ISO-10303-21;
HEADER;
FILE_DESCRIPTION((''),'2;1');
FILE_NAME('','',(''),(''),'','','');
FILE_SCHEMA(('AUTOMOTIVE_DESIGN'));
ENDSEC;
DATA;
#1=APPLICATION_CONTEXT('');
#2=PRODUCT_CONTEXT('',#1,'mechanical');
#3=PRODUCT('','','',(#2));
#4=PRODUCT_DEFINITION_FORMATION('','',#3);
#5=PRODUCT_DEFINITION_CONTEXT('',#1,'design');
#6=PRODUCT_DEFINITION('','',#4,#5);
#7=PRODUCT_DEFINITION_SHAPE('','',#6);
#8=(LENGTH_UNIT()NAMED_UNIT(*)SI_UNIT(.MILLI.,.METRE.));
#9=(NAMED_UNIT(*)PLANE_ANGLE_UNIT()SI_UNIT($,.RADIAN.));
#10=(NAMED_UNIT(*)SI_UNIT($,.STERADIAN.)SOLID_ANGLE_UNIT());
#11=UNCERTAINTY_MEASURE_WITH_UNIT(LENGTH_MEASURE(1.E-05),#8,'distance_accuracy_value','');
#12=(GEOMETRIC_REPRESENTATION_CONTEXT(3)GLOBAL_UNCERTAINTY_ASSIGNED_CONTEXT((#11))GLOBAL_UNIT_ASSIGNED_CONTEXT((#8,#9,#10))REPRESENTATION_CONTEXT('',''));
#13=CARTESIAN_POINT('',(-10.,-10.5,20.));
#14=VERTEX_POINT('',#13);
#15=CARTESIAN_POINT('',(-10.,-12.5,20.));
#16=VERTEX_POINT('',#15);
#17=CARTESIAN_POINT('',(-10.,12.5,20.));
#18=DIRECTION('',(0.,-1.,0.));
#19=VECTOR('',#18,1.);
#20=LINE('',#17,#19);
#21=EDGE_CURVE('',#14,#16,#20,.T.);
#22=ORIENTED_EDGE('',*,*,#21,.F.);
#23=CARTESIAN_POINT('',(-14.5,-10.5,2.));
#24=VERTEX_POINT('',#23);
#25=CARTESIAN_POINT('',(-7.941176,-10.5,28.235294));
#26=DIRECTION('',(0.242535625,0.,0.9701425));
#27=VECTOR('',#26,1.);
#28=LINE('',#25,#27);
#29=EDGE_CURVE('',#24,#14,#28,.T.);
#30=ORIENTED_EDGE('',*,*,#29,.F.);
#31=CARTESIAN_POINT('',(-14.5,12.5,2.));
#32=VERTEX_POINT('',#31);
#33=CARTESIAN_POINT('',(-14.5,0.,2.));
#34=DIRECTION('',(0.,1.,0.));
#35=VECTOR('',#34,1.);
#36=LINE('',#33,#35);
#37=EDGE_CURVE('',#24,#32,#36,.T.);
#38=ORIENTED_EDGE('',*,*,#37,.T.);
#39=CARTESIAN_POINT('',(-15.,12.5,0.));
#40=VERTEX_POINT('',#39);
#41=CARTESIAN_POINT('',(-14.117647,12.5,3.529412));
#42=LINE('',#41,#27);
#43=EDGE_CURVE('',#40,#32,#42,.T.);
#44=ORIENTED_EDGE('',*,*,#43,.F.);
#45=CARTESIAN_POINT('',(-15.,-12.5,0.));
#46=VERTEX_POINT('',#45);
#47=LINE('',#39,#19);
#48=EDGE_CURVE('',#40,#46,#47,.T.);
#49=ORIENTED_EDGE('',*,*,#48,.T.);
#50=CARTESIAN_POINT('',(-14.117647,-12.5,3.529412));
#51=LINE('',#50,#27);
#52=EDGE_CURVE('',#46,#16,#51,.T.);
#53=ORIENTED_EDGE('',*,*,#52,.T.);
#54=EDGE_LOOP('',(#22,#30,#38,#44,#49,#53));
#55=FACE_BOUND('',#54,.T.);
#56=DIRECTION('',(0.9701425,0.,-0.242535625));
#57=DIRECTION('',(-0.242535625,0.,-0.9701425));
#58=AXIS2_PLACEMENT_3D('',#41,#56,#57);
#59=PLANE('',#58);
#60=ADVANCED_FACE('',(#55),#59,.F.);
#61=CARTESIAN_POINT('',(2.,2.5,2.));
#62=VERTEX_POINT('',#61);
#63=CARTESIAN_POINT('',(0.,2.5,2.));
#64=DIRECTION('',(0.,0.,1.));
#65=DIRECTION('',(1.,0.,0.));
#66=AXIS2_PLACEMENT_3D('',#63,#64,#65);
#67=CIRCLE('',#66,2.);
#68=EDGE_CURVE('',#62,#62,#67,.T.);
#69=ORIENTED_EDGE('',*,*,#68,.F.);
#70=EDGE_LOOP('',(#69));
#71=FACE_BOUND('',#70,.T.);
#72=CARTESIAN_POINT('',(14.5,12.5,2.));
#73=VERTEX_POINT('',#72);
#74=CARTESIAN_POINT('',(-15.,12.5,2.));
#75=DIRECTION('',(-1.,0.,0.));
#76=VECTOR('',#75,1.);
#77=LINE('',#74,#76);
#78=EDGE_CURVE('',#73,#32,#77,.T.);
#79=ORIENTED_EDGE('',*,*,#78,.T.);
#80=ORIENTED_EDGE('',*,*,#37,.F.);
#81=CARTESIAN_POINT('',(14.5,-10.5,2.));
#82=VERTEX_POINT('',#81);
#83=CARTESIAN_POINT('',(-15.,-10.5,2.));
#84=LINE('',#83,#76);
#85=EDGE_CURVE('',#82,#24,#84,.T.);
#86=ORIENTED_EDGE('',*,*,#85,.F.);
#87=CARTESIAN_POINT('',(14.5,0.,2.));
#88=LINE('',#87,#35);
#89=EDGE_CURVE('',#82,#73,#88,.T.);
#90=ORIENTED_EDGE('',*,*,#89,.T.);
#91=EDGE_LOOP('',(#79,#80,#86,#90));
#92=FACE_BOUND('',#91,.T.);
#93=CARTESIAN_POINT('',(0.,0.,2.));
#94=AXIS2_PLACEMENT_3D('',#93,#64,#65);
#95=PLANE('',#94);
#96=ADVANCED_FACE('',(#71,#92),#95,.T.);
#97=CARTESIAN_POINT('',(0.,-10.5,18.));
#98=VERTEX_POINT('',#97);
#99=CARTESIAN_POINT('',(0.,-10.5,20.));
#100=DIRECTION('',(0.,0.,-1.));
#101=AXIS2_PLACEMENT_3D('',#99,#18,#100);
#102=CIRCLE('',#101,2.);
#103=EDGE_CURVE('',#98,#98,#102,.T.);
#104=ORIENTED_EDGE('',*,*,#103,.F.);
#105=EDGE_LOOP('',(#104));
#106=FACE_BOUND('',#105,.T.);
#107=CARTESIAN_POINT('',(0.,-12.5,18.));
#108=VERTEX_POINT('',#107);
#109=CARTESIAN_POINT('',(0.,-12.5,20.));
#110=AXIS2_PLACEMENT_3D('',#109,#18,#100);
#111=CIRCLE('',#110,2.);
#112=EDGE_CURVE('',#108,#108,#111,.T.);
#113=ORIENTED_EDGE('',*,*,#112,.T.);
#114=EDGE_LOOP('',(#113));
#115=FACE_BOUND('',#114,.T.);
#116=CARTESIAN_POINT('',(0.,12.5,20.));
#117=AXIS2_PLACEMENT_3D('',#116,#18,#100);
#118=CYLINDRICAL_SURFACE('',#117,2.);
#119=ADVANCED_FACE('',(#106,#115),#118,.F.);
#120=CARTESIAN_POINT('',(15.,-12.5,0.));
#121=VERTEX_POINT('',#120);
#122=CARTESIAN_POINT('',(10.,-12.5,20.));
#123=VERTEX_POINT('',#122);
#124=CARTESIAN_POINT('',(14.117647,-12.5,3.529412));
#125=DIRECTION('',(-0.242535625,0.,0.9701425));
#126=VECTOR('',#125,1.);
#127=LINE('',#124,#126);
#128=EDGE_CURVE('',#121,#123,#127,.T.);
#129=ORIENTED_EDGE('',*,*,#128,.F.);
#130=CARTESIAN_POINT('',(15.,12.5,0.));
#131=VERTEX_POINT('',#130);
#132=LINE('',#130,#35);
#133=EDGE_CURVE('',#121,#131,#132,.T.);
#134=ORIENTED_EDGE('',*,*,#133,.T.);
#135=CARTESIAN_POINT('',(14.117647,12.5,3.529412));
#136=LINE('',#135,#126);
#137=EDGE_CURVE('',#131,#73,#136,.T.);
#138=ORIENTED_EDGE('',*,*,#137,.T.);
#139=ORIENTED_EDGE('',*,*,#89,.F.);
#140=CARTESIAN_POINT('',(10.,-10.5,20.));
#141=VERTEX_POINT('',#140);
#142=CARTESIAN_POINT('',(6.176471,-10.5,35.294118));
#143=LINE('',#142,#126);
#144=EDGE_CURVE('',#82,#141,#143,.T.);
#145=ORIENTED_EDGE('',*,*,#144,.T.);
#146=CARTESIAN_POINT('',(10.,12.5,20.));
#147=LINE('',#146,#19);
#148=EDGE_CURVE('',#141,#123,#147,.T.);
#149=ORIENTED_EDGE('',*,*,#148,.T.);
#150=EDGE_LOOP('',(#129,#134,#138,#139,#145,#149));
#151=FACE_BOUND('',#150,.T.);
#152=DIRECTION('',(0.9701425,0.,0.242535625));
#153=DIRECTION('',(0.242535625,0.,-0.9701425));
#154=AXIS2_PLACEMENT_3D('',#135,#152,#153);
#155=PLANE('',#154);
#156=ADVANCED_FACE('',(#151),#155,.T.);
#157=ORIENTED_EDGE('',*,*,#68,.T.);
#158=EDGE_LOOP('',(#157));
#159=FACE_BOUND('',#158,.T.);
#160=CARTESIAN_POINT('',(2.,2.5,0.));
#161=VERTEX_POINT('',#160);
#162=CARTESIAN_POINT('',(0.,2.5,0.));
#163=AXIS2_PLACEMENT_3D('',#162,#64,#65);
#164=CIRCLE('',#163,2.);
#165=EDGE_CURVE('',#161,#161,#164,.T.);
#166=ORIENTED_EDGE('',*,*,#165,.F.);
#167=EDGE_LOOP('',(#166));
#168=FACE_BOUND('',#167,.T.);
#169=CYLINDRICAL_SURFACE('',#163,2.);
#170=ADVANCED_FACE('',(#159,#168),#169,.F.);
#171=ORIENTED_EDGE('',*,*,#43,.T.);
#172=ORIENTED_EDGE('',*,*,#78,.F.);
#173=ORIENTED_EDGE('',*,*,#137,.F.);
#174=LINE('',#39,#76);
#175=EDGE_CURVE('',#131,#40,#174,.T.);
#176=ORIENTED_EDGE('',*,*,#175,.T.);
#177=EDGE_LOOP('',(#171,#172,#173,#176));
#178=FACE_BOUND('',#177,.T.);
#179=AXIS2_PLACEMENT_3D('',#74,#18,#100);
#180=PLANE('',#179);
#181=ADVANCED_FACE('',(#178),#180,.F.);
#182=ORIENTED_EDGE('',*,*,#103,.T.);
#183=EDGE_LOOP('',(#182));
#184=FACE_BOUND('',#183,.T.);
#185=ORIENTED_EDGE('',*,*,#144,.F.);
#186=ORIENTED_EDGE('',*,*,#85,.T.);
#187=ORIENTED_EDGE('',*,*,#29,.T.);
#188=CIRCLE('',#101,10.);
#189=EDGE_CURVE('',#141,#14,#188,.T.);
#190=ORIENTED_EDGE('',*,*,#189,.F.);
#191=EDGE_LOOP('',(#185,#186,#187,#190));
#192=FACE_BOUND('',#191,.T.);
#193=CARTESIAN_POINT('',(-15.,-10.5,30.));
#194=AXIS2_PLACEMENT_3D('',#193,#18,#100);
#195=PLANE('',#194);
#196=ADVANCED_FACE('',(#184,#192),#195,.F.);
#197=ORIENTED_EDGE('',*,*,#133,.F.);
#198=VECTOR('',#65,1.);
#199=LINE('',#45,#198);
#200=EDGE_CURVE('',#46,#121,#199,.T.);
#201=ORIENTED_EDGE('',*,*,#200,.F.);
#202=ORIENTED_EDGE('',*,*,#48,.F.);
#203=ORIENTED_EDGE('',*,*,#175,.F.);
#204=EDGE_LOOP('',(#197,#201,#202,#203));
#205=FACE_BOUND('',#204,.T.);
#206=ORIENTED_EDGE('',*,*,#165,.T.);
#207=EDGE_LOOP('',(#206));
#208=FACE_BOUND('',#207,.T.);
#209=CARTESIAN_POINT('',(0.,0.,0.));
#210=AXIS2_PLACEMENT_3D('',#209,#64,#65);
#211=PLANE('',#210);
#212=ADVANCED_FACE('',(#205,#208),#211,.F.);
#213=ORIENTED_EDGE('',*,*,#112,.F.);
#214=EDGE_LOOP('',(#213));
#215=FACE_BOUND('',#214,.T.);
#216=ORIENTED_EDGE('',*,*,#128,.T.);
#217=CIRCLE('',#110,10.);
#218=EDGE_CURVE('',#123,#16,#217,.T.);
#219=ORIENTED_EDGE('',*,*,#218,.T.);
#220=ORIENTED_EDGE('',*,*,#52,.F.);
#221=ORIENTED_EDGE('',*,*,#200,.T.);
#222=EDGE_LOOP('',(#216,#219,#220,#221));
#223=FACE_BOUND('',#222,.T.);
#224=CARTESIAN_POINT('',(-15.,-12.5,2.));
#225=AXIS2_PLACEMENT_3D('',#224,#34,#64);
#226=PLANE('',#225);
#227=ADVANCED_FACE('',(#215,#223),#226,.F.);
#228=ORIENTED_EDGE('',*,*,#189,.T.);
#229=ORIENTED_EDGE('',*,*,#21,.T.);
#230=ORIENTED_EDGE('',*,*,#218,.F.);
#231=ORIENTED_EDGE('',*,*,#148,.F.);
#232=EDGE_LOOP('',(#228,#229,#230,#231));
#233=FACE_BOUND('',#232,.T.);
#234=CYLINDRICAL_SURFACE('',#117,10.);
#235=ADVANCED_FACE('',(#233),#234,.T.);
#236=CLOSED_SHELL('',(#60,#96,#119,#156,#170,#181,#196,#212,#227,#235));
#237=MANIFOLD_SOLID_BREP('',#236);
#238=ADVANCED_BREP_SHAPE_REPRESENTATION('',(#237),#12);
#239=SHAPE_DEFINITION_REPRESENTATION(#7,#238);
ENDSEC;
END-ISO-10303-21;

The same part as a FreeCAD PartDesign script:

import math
import FreeCAD as App
import Part
import Sketcher

V = App.Vector
Q = App.Units.Quantity


def add_polygon(sketch, points):
    """Adds a closed chain of lines whose ends are joined by coincident constraints."""
    first, n = sketch.GeometryCount, len(points)
    for a, b in zip(points, points[1:] + points[:1]):
        sketch.addGeometry(Part.LineSegment(App.Vector(*a, 0), App.Vector(*b, 0)), False)
    for i in range(n):
        sketch.addConstraint(Sketcher.Constraint("Coincident", first + i, 2, first + (i + 1) % n, 1))

doc = App.newDocument("Part")
body = doc.addObject("PartDesign::Body", "Body")

# Sketch on XY plane
sketch1 = body.newObject("Sketcher::SketchObject", "Sketch")
sketch1.AttachmentSupport = (doc.getObject("XY_Plane"), [""])
sketch1.MapMode = "FlatFace"
add_polygon(sketch1, [(-15, 12), (-15, -12), (15, -12), (15, 12)])  # lines 0-3
sketch1.addConstraint(Sketcher.Constraint("Vertical", 0))
sketch1.addConstraint(Sketcher.Constraint("Horizontal", 1))
sketch1.addConstraint(Sketcher.Constraint("Vertical", 2))
sketch1.addConstraint(Sketcher.Constraint("Horizontal", 3))
sketch1.addConstraint(Sketcher.Constraint("Symmetric", 0, 2, 2, 2, -1, 1))
sketch1.addConstraint(Sketcher.Constraint("DistanceX", 1, 1, 1, 2, Q("30 mm")))
sketch1.addConstraint(Sketcher.Constraint("DistanceY", 0, 2, 0, 1, Q("25 mm")))
pad1 = body.newObject("PartDesign::Pad", "Pad")
pad1.Profile = sketch1
pad1.Length = 2

# Sketch on XY plane
sketch2 = body.newObject("Sketcher::SketchObject", "Sketch001")
sketch2.AttachmentSupport = (doc.getObject("XY_Plane"), [""])
sketch2.MapMode = "FlatFace"
sketch2.AttachmentOffset = App.Placement(V(0, 0, 2), App.Rotation())
sketch2.addGeometry(Part.Circle(V(0, 2.5, 0), V(0, 0, 1), 2), False)
sketch2.addConstraint(Sketcher.Constraint("PointOnObject", 0, 3, -2))
sketch2.addConstraint(Sketcher.Constraint("Diameter", 0, Q("4 mm")))
sketch2.addConstraint(Sketcher.Constraint("DistanceY", -1, 1, 0, 3, Q("2.5 mm")))
pocket1 = body.newObject("PartDesign::Pocket", "Pocket")
pocket1.Profile = sketch2
pocket1.Length = 2

# Sketch on XY plane
sketch3 = body.newObject("Sketcher::SketchObject", "Sketch002")
sketch3.AttachmentSupport = (doc.getObject("XY_Plane"), [""])
sketch3.MapMode = "FlatFace"
sketch3.AttachmentOffset = App.Placement(V(0, 0, 2), App.Rotation())
add_polygon(sketch3, [(-15, -10.5), (-15, -12.5), (15, -12.5), (15, -10.5)])  # lines 0-3
sketch3.addConstraint(Sketcher.Constraint("Vertical", 0))
sketch3.addConstraint(Sketcher.Constraint("Horizontal", 1))
sketch3.addConstraint(Sketcher.Constraint("Vertical", 2))
sketch3.addConstraint(Sketcher.Constraint("Horizontal", 3))
sketch3.addConstraint(Sketcher.Constraint("DistanceX", 1, 1, 1, 2, Q("30 mm")))
sketch3.addConstraint(Sketcher.Constraint("DistanceY", 0, 2, 0, 1, Q("2 mm")))
sketch3.addConstraint(Sketcher.Constraint("DistanceX", 0, 2, -1, 1, Q("15 mm")))
sketch3.addConstraint(Sketcher.Constraint("DistanceY", 0, 2, -1, 1, Q("12.5 mm")))
pad2 = body.newObject("PartDesign::Pad", "Pad001")
pad2.Profile = sketch3
pad2.Length = 28

# Sketch on XZ plane
sketch4 = body.newObject("Sketcher::SketchObject", "Sketch003")
sketch4.AttachmentSupport = (doc.getObject("XZ_Plane"), [""])
sketch4.MapMode = "FlatFace"
sketch4.AttachmentOffset = App.Placement(V(0, 0, 12.5), App.Rotation())
sketch4.addGeometry(Part.Circle(V(0, 20, 0), V(0, 0, 1), 2), False)
sketch4.addGeometry(Part.LineSegment(V(-15, 30, 0), V(-15, 0, 0)), False)
sketch4.addGeometry(Part.LineSegment(V(-15, 0, 0), V(-10, 20, 0)), False)
sketch4.addGeometry(Part.ArcOfCircle(Part.Circle(V(0, 20, 0), V(0, 0, 1), 10), math.radians(90), math.radians(180)), False)
sketch4.addGeometry(Part.LineSegment(V(0, 30, 0), V(-15, 30, 0)), False)
sketch4.addGeometry(Part.LineSegment(V(15, 30, 0), V(0, 30, 0)), False)
sketch4.addGeometry(Part.ArcOfCircle(Part.Circle(V(0, 20, 0), V(0, 0, 1), 10), math.radians(0), math.radians(90)), False)
sketch4.addGeometry(Part.LineSegment(V(10, 20, 0), V(15, 0, 0)), False)
sketch4.addGeometry(Part.LineSegment(V(15, 0, 0), V(15, 30, 0)), False)
sketch4.addConstraint(Sketcher.Constraint("Coincident", 1, 2, 2, 1))
sketch4.addConstraint(Sketcher.Constraint("Coincident", 2, 2, 3, 2))
sketch4.addConstraint(Sketcher.Constraint("Tangent", 3, 1, 4, 1))
sketch4.addConstraint(Sketcher.Constraint("Coincident", 4, 2, 1, 1))
sketch4.addConstraint(Sketcher.Constraint("Tangent", 5, 2, 6, 2))
sketch4.addConstraint(Sketcher.Constraint("Coincident", 6, 1, 7, 1))
sketch4.addConstraint(Sketcher.Constraint("Coincident", 7, 2, 8, 1))
sketch4.addConstraint(Sketcher.Constraint("Coincident", 8, 2, 5, 1))
sketch4.addConstraint(Sketcher.Constraint("Vertical", 1))
sketch4.addConstraint(Sketcher.Constraint("Horizontal", 4))
sketch4.addConstraint(Sketcher.Constraint("Horizontal", 5))
sketch4.addConstraint(Sketcher.Constraint("Vertical", 8))
sketch4.addConstraint(Sketcher.Constraint("Coincident", 3, 3, 0, 3))
sketch4.addConstraint(Sketcher.Constraint("Coincident", 6, 3, 0, 3))
sketch4.addConstraint(Sketcher.Constraint("Equal", 3, 6))
sketch4.addConstraint(Sketcher.Constraint("Symmetric", 1, 2, 7, 2, -1, 1))
sketch4.addConstraint(Sketcher.Constraint("Symmetric", 2, 2, 6, 1, -2))
sketch4.addConstraint(Sketcher.Constraint("PointOnObject", 1, 2, -1))
sketch4.addConstraint(Sketcher.Constraint("Horizontal", 6, 3, 2, 2))
sketch4.addConstraint(Sketcher.Constraint("Diameter", 0, Q("4 mm")))
sketch4.addConstraint(Sketcher.Constraint("Radius", 3, Q("10 mm")))
sketch4.addConstraint(Sketcher.Constraint("DistanceX", 4, 2, 4, 1, Q("15 mm")))
sketch4.addConstraint(Sketcher.Constraint("DistanceY", 1, 2, 1, 1, Q("30 mm")))
pocket2 = body.newObject("PartDesign::Pocket", "Pocket001")
pocket2.Profile = sketch4
pocket2.Type = "ThroughAll"

doc.recompute()
